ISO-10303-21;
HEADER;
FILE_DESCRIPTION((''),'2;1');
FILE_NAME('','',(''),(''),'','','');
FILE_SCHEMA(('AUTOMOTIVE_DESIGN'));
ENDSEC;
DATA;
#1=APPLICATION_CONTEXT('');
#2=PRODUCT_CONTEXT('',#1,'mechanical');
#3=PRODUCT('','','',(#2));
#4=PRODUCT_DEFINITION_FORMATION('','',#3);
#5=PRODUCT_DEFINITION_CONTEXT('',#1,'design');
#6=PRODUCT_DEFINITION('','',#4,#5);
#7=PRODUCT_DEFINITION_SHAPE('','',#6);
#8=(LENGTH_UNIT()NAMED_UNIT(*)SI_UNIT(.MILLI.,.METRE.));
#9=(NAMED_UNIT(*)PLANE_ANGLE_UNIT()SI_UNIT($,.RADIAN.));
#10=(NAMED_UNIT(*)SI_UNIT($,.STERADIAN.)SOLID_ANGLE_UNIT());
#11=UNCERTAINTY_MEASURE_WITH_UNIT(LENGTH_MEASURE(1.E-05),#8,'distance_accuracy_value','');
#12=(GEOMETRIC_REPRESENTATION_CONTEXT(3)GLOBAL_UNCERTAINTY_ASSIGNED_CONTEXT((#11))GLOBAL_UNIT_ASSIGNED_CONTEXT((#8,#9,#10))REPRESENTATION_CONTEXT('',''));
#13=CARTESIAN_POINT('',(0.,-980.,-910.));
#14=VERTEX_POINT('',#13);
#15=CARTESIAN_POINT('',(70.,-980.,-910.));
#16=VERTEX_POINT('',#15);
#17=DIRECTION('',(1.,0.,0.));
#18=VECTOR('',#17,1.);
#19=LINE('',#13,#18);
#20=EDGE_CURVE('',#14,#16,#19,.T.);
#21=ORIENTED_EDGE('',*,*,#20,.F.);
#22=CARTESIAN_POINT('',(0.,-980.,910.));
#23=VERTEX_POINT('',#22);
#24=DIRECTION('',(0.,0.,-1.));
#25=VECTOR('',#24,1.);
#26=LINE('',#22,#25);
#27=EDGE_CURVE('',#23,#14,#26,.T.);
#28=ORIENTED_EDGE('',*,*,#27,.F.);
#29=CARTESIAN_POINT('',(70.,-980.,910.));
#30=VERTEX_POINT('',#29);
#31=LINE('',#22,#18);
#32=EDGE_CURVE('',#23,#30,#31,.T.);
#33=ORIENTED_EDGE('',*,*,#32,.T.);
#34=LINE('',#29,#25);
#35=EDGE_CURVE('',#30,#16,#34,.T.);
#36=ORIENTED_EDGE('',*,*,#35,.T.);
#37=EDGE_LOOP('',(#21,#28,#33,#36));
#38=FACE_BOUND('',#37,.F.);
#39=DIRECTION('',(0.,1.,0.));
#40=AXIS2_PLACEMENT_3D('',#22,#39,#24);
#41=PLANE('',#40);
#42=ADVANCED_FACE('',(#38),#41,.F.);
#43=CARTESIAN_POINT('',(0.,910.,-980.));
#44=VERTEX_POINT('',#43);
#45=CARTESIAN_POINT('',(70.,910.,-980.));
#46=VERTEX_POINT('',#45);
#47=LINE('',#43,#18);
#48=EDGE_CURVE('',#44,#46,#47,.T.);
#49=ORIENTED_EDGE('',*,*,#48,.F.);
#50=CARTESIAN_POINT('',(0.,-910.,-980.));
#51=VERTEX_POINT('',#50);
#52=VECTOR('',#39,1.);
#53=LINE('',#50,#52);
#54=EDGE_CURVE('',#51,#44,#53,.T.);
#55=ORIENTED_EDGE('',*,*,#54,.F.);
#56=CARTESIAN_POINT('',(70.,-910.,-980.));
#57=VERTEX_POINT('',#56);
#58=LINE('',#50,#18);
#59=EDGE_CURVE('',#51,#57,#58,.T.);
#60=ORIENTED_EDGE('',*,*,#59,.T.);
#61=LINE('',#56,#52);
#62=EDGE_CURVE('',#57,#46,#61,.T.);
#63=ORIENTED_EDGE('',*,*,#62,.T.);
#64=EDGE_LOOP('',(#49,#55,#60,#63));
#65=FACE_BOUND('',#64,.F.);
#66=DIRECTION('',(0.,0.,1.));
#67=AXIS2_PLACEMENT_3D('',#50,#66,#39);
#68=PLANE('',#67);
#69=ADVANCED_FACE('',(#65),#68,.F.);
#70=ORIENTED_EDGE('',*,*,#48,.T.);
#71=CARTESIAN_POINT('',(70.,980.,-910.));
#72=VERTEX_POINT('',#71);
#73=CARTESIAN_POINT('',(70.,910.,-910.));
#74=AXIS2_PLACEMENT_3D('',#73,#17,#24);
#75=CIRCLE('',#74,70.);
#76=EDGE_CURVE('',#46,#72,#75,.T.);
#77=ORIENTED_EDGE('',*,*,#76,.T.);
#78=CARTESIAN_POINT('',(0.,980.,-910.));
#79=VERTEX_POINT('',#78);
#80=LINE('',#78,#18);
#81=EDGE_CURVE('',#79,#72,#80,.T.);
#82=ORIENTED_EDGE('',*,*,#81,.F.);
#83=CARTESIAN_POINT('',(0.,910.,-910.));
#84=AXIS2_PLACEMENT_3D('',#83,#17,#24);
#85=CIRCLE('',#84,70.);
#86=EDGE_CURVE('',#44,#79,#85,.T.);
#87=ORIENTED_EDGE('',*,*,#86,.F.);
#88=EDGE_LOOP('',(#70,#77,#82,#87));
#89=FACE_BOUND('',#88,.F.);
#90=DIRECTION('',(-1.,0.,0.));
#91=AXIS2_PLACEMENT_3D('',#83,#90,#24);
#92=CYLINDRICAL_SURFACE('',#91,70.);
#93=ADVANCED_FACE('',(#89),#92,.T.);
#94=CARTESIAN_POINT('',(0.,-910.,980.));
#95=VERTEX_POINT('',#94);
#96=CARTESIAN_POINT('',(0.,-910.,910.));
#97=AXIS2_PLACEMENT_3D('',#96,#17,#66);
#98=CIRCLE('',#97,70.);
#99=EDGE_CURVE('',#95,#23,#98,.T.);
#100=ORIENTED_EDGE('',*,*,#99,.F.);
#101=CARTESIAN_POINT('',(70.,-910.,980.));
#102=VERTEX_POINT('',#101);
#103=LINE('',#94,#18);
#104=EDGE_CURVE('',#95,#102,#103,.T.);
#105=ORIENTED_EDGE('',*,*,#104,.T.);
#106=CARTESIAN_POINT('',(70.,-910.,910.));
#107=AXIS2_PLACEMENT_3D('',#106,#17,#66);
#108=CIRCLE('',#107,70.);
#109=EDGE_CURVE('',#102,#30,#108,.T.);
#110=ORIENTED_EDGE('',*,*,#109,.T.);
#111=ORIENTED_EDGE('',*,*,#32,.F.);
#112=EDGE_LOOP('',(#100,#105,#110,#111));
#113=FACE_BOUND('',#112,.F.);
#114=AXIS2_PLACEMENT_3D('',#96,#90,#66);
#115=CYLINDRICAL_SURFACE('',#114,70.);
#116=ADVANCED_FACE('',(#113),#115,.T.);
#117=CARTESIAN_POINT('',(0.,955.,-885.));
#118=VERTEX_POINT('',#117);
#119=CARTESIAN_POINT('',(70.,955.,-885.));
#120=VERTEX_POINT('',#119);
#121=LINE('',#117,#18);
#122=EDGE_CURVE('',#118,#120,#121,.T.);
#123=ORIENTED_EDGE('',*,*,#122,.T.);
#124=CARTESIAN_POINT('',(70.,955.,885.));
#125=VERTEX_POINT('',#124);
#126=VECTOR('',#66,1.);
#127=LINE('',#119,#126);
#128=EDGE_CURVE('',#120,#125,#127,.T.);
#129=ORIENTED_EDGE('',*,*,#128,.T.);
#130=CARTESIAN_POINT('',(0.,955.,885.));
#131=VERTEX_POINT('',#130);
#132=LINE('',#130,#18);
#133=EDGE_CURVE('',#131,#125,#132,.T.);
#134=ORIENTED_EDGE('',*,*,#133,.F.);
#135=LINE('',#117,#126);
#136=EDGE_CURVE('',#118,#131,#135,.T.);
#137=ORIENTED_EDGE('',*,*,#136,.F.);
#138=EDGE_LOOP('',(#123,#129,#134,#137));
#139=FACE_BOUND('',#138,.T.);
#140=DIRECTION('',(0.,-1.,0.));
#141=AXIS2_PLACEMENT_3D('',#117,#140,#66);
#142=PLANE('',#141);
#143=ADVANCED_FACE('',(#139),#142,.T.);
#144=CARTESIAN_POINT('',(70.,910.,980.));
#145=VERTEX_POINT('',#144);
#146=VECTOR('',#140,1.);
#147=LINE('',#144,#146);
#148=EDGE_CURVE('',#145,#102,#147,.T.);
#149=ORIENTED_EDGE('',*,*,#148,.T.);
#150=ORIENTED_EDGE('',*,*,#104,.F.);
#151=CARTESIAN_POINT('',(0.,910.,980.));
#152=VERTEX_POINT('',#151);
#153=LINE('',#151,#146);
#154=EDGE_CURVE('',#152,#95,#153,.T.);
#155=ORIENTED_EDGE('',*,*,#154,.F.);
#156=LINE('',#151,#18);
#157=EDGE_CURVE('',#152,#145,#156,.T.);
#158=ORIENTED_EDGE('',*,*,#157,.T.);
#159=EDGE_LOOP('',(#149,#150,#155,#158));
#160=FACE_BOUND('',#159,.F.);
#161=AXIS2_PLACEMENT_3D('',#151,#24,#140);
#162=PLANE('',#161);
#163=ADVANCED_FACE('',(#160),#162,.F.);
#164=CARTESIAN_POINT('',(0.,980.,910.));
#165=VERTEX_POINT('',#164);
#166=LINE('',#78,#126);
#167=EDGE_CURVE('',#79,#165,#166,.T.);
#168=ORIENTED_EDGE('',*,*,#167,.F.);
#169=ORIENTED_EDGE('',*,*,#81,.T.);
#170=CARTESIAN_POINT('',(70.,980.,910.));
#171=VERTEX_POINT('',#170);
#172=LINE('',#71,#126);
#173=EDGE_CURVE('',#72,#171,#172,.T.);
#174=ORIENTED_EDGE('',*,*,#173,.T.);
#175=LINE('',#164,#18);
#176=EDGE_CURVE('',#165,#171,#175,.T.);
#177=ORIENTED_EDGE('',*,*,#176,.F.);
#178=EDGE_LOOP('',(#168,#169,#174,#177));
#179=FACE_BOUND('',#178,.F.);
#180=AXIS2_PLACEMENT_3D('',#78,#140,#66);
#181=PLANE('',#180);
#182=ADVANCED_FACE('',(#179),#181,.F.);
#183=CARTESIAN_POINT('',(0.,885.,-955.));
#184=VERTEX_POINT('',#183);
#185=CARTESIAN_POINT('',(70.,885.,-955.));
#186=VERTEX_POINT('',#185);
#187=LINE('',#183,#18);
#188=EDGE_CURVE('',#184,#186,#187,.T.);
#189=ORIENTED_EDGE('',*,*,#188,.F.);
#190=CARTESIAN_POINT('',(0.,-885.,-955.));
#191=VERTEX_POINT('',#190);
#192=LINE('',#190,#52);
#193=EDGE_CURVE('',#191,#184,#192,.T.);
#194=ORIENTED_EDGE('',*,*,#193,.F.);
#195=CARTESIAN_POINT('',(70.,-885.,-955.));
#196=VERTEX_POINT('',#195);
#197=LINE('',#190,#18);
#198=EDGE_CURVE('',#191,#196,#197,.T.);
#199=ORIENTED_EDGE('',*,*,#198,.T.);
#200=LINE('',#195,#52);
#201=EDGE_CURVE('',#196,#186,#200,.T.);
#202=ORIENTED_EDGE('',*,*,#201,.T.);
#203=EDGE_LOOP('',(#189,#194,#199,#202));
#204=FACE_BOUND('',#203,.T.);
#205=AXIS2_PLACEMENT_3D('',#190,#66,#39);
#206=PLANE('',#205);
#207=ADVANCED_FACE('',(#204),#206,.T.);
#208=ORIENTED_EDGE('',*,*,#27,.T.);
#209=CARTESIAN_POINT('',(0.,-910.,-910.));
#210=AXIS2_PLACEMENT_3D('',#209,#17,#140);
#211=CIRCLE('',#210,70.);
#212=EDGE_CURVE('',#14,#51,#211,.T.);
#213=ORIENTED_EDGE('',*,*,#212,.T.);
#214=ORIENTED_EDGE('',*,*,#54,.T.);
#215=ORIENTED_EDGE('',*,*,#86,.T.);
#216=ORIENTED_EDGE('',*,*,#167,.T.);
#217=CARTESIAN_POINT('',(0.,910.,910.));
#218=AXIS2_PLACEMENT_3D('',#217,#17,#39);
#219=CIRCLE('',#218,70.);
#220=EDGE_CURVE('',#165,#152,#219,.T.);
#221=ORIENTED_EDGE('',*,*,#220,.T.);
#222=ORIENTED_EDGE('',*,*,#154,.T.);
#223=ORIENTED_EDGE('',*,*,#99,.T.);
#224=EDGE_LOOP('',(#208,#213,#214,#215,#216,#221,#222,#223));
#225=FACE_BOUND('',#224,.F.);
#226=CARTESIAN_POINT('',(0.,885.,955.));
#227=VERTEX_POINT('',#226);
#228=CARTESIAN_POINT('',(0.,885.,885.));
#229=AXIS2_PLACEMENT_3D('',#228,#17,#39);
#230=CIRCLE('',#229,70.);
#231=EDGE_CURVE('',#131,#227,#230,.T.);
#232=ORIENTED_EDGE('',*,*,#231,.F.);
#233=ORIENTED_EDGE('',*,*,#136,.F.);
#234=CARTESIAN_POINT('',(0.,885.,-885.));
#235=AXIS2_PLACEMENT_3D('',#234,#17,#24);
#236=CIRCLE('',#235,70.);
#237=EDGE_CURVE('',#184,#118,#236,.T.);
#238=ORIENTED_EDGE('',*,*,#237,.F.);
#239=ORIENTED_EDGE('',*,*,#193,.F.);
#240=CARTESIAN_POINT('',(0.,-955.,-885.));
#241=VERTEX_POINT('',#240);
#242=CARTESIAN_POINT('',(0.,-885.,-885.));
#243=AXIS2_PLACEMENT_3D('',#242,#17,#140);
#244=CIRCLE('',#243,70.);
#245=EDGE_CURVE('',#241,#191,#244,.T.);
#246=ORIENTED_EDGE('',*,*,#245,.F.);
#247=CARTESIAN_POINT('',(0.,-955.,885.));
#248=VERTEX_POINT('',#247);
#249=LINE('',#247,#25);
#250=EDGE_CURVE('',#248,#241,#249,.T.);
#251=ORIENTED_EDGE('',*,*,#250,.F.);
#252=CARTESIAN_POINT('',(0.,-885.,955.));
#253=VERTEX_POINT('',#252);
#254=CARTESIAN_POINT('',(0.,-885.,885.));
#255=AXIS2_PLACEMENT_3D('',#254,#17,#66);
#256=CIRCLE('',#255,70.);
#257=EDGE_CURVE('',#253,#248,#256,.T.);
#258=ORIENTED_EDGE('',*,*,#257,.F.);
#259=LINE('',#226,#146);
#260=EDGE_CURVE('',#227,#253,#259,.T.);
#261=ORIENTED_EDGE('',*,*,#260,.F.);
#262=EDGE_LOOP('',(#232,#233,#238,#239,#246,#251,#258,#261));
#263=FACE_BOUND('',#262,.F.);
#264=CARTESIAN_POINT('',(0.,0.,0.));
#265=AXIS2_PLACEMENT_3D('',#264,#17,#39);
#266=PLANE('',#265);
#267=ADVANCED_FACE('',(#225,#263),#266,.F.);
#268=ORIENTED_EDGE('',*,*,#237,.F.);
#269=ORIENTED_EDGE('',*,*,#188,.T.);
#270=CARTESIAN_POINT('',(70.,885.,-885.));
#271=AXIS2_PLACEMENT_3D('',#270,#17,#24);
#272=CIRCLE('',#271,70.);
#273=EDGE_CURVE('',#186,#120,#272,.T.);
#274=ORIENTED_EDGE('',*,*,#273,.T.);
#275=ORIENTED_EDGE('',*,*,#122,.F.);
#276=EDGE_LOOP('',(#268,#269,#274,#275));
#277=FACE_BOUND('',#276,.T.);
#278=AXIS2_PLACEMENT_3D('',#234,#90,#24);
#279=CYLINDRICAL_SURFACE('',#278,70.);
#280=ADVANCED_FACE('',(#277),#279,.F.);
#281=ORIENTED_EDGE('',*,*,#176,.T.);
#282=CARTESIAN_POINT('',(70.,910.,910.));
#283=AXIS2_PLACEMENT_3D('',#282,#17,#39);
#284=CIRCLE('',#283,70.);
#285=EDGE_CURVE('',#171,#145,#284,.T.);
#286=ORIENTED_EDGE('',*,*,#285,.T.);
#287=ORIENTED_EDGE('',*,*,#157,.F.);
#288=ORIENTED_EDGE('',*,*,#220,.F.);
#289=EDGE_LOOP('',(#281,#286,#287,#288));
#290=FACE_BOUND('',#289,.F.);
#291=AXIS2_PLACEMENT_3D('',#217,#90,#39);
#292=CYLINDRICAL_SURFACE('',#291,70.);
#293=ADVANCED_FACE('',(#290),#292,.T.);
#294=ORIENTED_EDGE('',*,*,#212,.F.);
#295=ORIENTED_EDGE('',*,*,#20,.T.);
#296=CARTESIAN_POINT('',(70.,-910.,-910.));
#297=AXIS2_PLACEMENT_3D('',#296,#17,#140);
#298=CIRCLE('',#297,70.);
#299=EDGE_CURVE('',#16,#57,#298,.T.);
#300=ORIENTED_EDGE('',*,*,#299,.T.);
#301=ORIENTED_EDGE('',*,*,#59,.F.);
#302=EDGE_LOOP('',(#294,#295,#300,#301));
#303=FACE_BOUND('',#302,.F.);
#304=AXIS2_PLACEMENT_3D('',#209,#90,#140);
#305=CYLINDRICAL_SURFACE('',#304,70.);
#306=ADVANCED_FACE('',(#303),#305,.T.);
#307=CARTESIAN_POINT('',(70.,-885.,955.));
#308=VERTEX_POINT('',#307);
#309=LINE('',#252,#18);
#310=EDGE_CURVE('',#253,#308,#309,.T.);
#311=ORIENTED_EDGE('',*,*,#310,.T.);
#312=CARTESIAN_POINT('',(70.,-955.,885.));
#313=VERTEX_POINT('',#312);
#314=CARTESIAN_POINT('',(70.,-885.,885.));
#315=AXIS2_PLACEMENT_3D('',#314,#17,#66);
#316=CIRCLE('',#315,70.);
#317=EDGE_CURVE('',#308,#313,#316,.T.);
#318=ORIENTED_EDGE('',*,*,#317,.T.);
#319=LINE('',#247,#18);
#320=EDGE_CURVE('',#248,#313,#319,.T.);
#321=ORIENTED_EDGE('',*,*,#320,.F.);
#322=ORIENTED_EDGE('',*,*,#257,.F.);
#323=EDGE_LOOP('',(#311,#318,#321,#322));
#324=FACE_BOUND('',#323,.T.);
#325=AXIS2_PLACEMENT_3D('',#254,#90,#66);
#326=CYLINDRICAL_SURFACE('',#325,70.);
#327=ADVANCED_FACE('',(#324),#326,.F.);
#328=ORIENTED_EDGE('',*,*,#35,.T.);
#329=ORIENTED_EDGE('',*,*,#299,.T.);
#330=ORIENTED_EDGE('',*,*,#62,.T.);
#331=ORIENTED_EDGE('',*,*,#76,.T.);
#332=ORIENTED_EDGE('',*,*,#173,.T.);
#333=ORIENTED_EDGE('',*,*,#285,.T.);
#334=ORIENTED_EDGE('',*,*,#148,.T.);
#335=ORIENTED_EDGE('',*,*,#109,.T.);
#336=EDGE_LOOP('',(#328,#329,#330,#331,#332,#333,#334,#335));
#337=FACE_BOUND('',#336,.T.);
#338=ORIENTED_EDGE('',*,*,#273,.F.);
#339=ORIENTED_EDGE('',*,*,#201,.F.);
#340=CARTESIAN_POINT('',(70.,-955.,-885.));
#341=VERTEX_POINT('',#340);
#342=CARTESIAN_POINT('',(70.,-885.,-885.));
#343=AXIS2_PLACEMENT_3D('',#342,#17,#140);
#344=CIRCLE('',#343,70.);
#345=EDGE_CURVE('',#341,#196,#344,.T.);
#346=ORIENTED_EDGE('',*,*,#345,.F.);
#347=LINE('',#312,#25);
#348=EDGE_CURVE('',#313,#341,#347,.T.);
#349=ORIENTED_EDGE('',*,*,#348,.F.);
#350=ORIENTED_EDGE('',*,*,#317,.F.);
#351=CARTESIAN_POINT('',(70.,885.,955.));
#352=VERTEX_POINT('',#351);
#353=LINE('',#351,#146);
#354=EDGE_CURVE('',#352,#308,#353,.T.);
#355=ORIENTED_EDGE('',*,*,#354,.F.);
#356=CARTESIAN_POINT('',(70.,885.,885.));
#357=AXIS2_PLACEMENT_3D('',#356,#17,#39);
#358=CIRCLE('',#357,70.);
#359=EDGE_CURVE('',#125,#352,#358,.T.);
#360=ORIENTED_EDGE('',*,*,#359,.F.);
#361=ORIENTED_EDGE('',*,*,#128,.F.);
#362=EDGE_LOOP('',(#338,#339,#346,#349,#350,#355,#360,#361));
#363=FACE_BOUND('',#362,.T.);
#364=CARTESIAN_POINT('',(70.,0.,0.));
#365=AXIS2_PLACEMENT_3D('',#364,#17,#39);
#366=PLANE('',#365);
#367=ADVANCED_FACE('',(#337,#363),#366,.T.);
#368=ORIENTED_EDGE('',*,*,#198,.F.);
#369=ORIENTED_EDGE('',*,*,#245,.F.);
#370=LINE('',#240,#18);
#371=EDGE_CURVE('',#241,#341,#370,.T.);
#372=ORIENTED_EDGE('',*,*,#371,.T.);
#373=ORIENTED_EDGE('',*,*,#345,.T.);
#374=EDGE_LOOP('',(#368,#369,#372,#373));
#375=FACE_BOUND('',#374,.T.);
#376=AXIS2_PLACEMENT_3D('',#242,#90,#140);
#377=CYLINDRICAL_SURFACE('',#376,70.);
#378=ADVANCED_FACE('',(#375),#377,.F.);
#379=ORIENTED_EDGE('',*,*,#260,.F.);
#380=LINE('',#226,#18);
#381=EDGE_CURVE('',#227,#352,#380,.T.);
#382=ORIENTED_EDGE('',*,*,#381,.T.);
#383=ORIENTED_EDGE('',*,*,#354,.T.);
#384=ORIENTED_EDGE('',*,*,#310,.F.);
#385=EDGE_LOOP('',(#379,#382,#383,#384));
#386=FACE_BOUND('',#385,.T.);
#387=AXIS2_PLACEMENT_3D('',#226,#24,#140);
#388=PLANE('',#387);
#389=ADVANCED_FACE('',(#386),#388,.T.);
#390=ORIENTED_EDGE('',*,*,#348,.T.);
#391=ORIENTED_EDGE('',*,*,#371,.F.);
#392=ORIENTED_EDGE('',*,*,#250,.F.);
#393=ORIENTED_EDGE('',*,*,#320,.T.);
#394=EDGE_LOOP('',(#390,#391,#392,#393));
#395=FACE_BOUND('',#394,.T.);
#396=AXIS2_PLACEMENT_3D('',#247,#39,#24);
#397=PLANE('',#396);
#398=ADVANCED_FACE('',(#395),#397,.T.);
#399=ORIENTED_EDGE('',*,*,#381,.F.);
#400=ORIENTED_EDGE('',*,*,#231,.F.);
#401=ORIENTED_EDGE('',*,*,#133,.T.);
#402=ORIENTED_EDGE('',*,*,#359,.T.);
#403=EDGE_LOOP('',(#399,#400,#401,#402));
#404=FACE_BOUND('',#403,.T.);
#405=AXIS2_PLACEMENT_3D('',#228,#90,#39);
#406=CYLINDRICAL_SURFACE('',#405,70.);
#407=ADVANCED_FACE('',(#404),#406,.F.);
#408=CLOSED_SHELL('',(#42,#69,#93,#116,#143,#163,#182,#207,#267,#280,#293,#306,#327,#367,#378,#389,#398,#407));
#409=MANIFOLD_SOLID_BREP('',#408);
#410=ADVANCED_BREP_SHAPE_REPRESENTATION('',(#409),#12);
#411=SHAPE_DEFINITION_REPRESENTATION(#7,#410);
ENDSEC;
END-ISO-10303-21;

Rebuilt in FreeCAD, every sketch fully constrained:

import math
import FreeCAD as App
import Part
import Sketcher
from FreeCAD import Vector

doc = App.newDocument("Part")
body = doc.addObject("PartDesign::Body", "Body")

sketch1 = body.newObject("Sketcher::SketchObject", "Sketch")
sketch1.AttachmentSupport = (doc.getObject("YZ_Plane"), [""])
sketch1.MapMode = "FlatFace"
sketch1.addGeometry(Part.ArcOfCircle(Part.Circle(Vector(-910, -910, 0), Vector(0, 0, 1), 70), math.radians(180), math.radians(270)), False)
sketch1.addGeometry(Part.LineSegment(Vector(-910, -980, 0), Vector(910, -980, 0)), False)
sketch1.addGeometry(Part.ArcOfCircle(Part.Circle(Vector(910, -910, 0), Vector(0, 0, 1), 70), math.radians(-90), math.radians(0)), False)
sketch1.addGeometry(Part.LineSegment(Vector(980, -910, 0), Vector(980, 910, 0)), False)
sketch1.addGeometry(Part.ArcOfCircle(Part.Circle(Vector(910, 910, 0), Vector(0, 0, 1), 70), math.radians(0), math.radians(90)), False)
sketch1.addGeometry(Part.LineSegment(Vector(910, 980, 0), Vector(-910, 980, 0)), False)
sketch1.addGeometry(Part.ArcOfCircle(Part.Circle(Vector(-910, 910, 0), Vector(0, 0, 1), 70), math.radians(90), math.radians(180)), False)
sketch1.addGeometry(Part.LineSegment(Vector(-980, 910, 0), Vector(-980, -910, 0)), False)
sketch1.addGeometry(Part.LineSegment(Vector(885, -955, 0), Vector(-885, -955, 0)), False)
sketch1.addGeometry(Part.ArcOfCircle(Part.Circle(Vector(-885, -885, 0), Vector(0, 0, 1), 70), math.radians(180), math.radians(270)), False)
sketch1.addGeometry(Part.LineSegment(Vector(-955, -885, 0), Vector(-955, 885, 0)), False)
sketch1.addGeometry(Part.ArcOfCircle(Part.Circle(Vector(-885, 885, 0), Vector(0, 0, 1), 70), math.radians(90), math.radians(180)), False)
sketch1.addGeometry(Part.LineSegment(Vector(-885, 955, 0), Vector(885, 955, 0)), False)
sketch1.addGeometry(Part.ArcOfCircle(Part.Circle(Vector(885, 885, 0), Vector(0, 0, 1), 70), math.radians(0), math.radians(90)), False)
sketch1.addGeometry(Part.LineSegment(Vector(955, 885, 0), Vector(955, -885, 0)), False)
sketch1.addGeometry(Part.ArcOfCircle(Part.Circle(Vector(885, -885, 0), Vector(0, 0, 1), 70), math.radians(-90), math.radians(0)), False)
sketch1.addConstraint(Sketcher.Constraint("Tangent", 0, 2, 1, 1))
sketch1.addConstraint(Sketcher.Constraint("Tangent", 1, 2, 2, 1))
sketch1.addConstraint(Sketcher.Constraint("Tangent", 2, 2, 3, 1))
sketch1.addConstraint(Sketcher.Constraint("Tangent", 3, 2, 4, 1))
sketch1.addConstraint(Sketcher.Constraint("Tangent", 4, 2, 5, 1))
sketch1.addConstraint(Sketcher.Constraint("Tangent", 5, 2, 6, 1))
sketch1.addConstraint(Sketcher.Constraint("Tangent", 6, 2, 7, 1))
sketch1.addConstraint(Sketcher.Constraint("Tangent", 7, 2, 0, 1))
sketch1.addConstraint(Sketcher.Constraint("Tangent", 8, 2, 9, 2))
sketch1.addConstraint(Sketcher.Constraint("Tangent", 9, 1, 10, 1))
sketch1.addConstraint(Sketcher.Constraint("Tangent", 10, 2, 11, 2))
sketch1.addConstraint(Sketcher.Constraint("Tangent", 11, 1, 12, 1))
sketch1.addConstraint(Sketcher.Constraint("Tangent", 12, 2, 13, 2))
sketch1.addConstraint(Sketcher.Constraint("Tangent", 13, 1, 14, 1))
sketch1.addConstraint(Sketcher.Constraint("Tangent", 14, 2, 15, 2))
sketch1.addConstraint(Sketcher.Constraint("Tangent", 15, 1, 8, 1))
sketch1.addConstraint(Sketcher.Constraint("Horizontal", 1))
sketch1.addConstraint(Sketcher.Constraint("Vertical", 3))
sketch1.addConstraint(Sketcher.Constraint("Horizontal", 5))
sketch1.addConstraint(Sketcher.Constraint("Vertical", 7))
sketch1.addConstraint(Sketcher.Constraint("Horizontal", 8))
sketch1.addConstraint(Sketcher.Constraint("Vertical", 10))
sketch1.addConstraint(Sketcher.Constraint("Horizontal", 12))
sketch1.addConstraint(Sketcher.Constraint("Vertical", 14))
sketch1.addConstraint(Sketcher.Constraint("Equal", 0, 2))
sketch1.addConstraint(Sketcher.Constraint("Equal", 2, 4))
sketch1.addConstraint(Sketcher.Constraint("Equal", 4, 6))
sketch1.addConstraint(Sketcher.Constraint("Equal", 6, 9))
sketch1.addConstraint(Sketcher.Constraint("Equal", 9, 11))
sketch1.addConstraint(Sketcher.Constraint("Equal", 11, 13))
sketch1.addConstraint(Sketcher.Constraint("Equal", 13, 15))
sketch1.addConstraint(Sketcher.Constraint("Symmetric", 0, 3, 4, 3, -1, 1))
sketch1.addConstraint(Sketcher.Constraint("Symmetric", 9, 3, 13, 3, -1, 1))
sketch1.addConstraint(Sketcher.Constraint("Equal", 5, 3))
sketch1.addConstraint(Sketcher.Constraint("Equal", 12, 10))
sketch1.addConstraint(Sketcher.Constraint("Radius", 0, 70.0))
sketch1.addConstraint(Sketcher.Constraint("DistanceX", 1, 1, 1, 2, 1820.0))
sketch1.addConstraint(Sketcher.Constraint("DistanceX", 8, 2, 8, 1, 1770.0))
pad1 = body.newObject("PartDesign::Pad", "Pad")
pad1.Profile = sketch1
pad1.Length = 70

doc.recompute()
